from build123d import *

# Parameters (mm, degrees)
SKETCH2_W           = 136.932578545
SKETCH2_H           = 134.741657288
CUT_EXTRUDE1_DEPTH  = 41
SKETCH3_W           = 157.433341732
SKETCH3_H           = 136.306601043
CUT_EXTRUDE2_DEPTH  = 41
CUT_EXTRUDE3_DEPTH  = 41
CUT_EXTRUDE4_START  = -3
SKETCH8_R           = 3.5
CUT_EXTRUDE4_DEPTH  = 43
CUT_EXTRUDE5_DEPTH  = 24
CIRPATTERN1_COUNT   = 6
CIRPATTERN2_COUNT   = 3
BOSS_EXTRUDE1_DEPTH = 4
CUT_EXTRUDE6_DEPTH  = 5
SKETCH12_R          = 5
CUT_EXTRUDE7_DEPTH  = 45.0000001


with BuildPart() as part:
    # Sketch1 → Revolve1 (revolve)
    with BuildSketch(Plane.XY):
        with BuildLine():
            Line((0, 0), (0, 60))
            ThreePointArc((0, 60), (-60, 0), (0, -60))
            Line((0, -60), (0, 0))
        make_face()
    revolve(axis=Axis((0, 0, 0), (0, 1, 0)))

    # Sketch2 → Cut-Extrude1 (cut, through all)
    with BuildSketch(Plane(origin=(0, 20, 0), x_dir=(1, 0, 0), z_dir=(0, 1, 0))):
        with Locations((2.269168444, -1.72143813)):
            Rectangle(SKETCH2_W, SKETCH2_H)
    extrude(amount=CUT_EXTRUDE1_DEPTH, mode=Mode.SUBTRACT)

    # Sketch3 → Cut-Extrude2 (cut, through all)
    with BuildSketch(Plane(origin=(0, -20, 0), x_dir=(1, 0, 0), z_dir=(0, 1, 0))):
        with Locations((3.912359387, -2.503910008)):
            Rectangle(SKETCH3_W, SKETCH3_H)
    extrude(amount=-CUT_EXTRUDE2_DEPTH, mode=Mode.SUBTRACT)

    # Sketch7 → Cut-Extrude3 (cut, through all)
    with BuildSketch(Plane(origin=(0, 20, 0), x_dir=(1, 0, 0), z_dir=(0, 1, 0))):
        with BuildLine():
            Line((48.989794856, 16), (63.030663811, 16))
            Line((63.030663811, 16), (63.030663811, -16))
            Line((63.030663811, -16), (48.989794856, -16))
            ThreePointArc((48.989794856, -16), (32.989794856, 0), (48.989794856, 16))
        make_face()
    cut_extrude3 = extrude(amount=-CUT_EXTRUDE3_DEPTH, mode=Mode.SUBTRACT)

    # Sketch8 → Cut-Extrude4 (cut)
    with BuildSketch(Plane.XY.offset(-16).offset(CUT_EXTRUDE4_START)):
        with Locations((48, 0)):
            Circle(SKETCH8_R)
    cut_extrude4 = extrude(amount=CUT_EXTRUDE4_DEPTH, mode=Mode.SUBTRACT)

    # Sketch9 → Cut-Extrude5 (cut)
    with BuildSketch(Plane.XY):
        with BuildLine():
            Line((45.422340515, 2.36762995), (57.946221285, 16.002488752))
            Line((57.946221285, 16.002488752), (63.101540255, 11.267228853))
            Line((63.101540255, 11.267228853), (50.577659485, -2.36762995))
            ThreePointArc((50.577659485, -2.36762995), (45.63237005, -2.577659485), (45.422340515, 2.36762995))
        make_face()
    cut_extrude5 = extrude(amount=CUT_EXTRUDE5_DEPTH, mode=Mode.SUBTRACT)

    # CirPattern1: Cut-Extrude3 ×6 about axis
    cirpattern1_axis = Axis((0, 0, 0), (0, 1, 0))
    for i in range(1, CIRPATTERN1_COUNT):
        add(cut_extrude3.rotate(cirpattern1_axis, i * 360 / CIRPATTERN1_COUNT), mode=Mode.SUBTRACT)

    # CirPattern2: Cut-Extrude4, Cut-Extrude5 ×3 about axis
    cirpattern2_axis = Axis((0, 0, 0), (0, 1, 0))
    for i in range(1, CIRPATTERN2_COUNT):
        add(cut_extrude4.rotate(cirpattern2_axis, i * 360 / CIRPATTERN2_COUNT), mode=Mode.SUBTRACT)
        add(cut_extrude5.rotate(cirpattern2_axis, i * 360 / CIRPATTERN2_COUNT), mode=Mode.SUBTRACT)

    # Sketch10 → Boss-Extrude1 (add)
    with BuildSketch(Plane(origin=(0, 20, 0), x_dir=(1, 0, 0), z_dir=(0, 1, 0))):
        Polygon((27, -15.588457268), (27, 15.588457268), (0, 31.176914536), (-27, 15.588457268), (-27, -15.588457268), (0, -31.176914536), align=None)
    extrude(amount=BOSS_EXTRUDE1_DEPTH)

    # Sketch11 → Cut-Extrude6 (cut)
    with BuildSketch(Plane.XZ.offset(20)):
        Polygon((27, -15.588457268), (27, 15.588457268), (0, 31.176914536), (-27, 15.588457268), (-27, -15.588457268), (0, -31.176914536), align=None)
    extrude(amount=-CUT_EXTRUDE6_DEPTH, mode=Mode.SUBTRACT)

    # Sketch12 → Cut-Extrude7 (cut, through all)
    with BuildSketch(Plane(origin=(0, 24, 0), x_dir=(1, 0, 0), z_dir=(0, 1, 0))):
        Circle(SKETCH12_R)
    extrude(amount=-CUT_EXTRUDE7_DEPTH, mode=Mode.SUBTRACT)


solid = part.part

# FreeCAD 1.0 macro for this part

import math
import FreeCAD as App
import Part
import Sketcher

V = App.Vector
Q = App.Units.Quantity

doc = App.newDocument("Part")
body = doc.addObject("PartDesign::Body", "Body")

# Sketch on XY plane
sketch1 = doc.addObject("Sketcher::SketchObject", "Sketch")
body.addObject(sketch1)
sketch1.AttachmentSupport = (doc.XY_Plane, [""])
sketch1.MapMode = "FlatFace"
sketch1.addGeometry([
    Part.ArcOfCircle(Part.Circle(V(0, 0, 0), V(0, 0, 1), 60), math.radians(90), math.radians(270)),
    Part.LineSegment(V(0, -60, 0), V(0, 60, 0)),
], False)
sketch1.addConstraint([
    Sketcher.Constraint("Coincident", 0, 1, 1, 2),
    Sketcher.Constraint("Coincident", 1, 1, 0, 2),
    Sketcher.Constraint("Vertical", 1),
    Sketcher.Constraint("Coincident", 0, 3, -1, 1),
    Sketcher.Constraint("PointOnObject", 0, 1, -2),
    Sketcher.Constraint("Radius", 0, Q("60 mm")),
])
revolution = doc.addObject("PartDesign::Revolution", "Revolution")
body.addObject(revolution)
revolution.Profile = sketch1
revolution.ReferenceAxis = (sketch1, ["V_Axis"])
revolution.Angle = 360

# Sketch on XZ plane
sketch2 = doc.addObject("Sketcher::SketchObject", "Sketch001")
body.addObject(sketch2)
sketch2.AttachmentSupport = (doc.XZ_Plane, [""])
sketch2.MapMode = "FlatFace"
sketch2.AttachmentOffset = App.Placement(V(0, 0, -20), App.Rotation())
sketch2.addGeometry([
    Part.LineSegment(V(-66.197121, -65.649391, 0), V(-66.197121, 69.092267, 0)),
    Part.LineSegment(V(-66.197121, 69.092267, 0), V(70.735458, 69.092267, 0)),
    Part.LineSegment(V(70.735458, 69.092267, 0), V(70.735458, -65.649391, 0)),
    Part.LineSegment(V(70.735458, -65.649391, 0), V(-66.197121, -65.649391, 0)),
], False)
sketch2.addConstraint([
    Sketcher.Constraint("Coincident", 0, 2, 1, 1),
    Sketcher.Constraint("Coincident", 1, 2, 2, 1),
    Sketcher.Constraint("Coincident", 2, 2, 3, 1),
    Sketcher.Constraint("Coincident", 3, 2, 0, 1),
    Sketcher.Constraint("Vertical", 0),
    Sketcher.Constraint("Horizontal", 1),
    Sketcher.Constraint("Vertical", 2),
    Sketcher.Constraint("Horizontal", 3),
    Sketcher.Constraint("DistanceX", 1, 1, 1, 2, Q("136.932579 mm")),
    Sketcher.Constraint("DistanceY", 0, 1, 0, 2, Q("134.741657 mm")),
    Sketcher.Constraint("DistanceX", 0, 2, -1, 1, Q("66.197121 mm")),
    Sketcher.Constraint("DistanceY", 2, 2, -1, 1, Q("65.649391 mm")),
])
pocket1 = doc.addObject("PartDesign::Pocket", "Pocket")
body.addObject(pocket1)
pocket1.Profile = sketch2
pocket1.Type = "ThroughAll"

# Sketch on XZ plane
sketch3 = doc.addObject("Sketcher::SketchObject", "Sketch002")
body.addObject(sketch3)
sketch3.AttachmentSupport = (doc.XZ_Plane, [""])
sketch3.MapMode = "FlatFace"
sketch3.AttachmentOffset = App.Placement(V(0, 0, 20), App.Rotation())
sketch3.addGeometry([
    Part.LineSegment(V(-74.804311, -65.649391, 0), V(-74.804311, 70.657211, 0)),
    Part.LineSegment(V(-74.804311, 70.657211, 0), V(82.62903, 70.657211, 0)),
    Part.LineSegment(V(82.62903, 70.657211, 0), V(82.62903, -65.649391, 0)),
    Part.LineSegment(V(82.62903, -65.649391, 0), V(-74.804311, -65.649391, 0)),
], False)
sketch3.addConstraint([
    Sketcher.Constraint("Coincident", 0, 2, 1, 1),
    Sketcher.Constraint("Coincident", 1, 2, 2, 1),
    Sketcher.Constraint("Coincident", 2, 2, 3, 1),
    Sketcher.Constraint("Coincident", 3, 2, 0, 1),
    Sketcher.Constraint("Vertical", 0),
    Sketcher.Constraint("Horizontal", 1),
    Sketcher.Constraint("Vertical", 2),
    Sketcher.Constraint("Horizontal", 3),
    Sketcher.Constraint("DistanceY", 0, 1, 0, 2, Q("136.306601 mm")),
    Sketcher.Constraint("DistanceX", 1, 1, 1, 2, Q("157.433342 mm")),
    Sketcher.Constraint("DistanceX", 0, 2, -1, 1, Q("74.804311 mm")),
    Sketcher.Constraint("DistanceY", -1, 1, 0, 2, Q("70.657211 mm")),
])
pocket2 = doc.addObject("PartDesign::Pocket", "Pocket001")
body.addObject(pocket2)
pocket2.Profile = sketch3
pocket2.Type = "ThroughAll"
pocket2.Reversed = True

# Sketch on XZ plane
sketch4 = doc.addObject("Sketcher::SketchObject", "Sketch003")
body.addObject(sketch4)
sketch4.AttachmentSupport = (doc.XZ_Plane, [""])
sketch4.MapMode = "FlatFace"
sketch4.AttachmentOffset = App.Placement(V(0, 0, -20), App.Rotation())
sketch4.addGeometry([
    Part.LineSegment(V(63.030664, -16, 0), V(48.989795, -16, 0)),
    Part.ArcOfCircle(Part.Circle(V(48.989795, 0, 0), V(0, 0, 1), 16), math.radians(90), math.radians(270)),
    Part.LineSegment(V(48.989795, 16, 0), V(63.030664, 16, 0)),
    Part.LineSegment(V(63.030664, 16, 0), V(63.030664, -16, 0)),
], False)
sketch4.addConstraint([
    Sketcher.Constraint("Tangent", 0, 2, 1, 2),
    Sketcher.Constraint("Tangent", 1, 1, 2, 1),
    Sketcher.Constraint("Coincident", 2, 2, 3, 1),
    Sketcher.Constraint("Coincident", 3, 2, 0, 1),
    Sketcher.Constraint("Horizontal", 0),
    Sketcher.Constraint("Horizontal", 2),
    Sketcher.Constraint("Vertical", 3),
    Sketcher.Constraint("PointOnObject", 1, 3, -1),
    Sketcher.Constraint("Radius", 1, Q("16 mm")),
    Sketcher.Constraint("DistanceX", 0, 2, 0, 1, Q("14.040869 mm")),
    Sketcher.Constraint("DistanceX", -1, 1, 1, 3, Q("48.989795 mm")),
])
pocket3 = doc.addObject("PartDesign::Pocket", "Pocket002")
body.addObject(pocket3)
pocket3.Profile = sketch4
pocket3.Type = "ThroughAll"
pocket3.Reversed = True

# Sketch on XY plane
sketch5 = doc.addObject("Sketcher::SketchObject", "Sketch004")
body.addObject(sketch5)
sketch5.AttachmentSupport = (doc.XY_Plane, [""])
sketch5.MapMode = "FlatFace"
sketch5.AttachmentOffset = App.Placement(V(0, 0, -19), App.Rotation())
sketch5.addGeometry(Part.Circle(V(48, 0, 0), V(0, 0, 1), 3.5), False)
sketch5.addConstraint([
    Sketcher.Constraint("PointOnObject", 0, 3, -1),
    Sketcher.Constraint("Diameter", 0, Q("7 mm")),
    Sketcher.Constraint("DistanceX", -1, 1, 0, 3, Q("48 mm")),
])
pocket4 = doc.addObject("PartDesign::Pocket", "Pocket003")
body.addObject(pocket4)
pocket4.Profile = sketch5
pocket4.Length = 43
pocket4.Reversed = True

# Sketch on XY plane
sketch6 = doc.addObject("Sketcher::SketchObject", "Sketch005")
body.addObject(sketch6)
sketch6.AttachmentSupport = (doc.XY_Plane, [""])
sketch6.MapMode = "FlatFace"
sketch6.addGeometry([
    Part.LineSegment(V(57.946221, 16.002489, 0), V(45.422341, 2.36763, 0)),
    Part.ArcOfCircle(Part.Circle(V(48, 0, 0), V(0, 0, 1), 3.5), math.radians(137.431926), math.radians(317.431926)),
    Part.LineSegment(V(50.577659, -2.36763, 0), V(63.10154, 11.267229, 0)),
    Part.LineSegment(V(63.10154, 11.267229, 0), V(57.946221, 16.002489, 0)),
], False)
sketch6.addConstraint([
    Sketcher.Constraint("Tangent", 0, 2, 1, 1),
    Sketcher.Constraint("Tangent", 1, 2, 2, 1),
    Sketcher.Constraint("Coincident", 2, 2, 3, 1),
    Sketcher.Constraint("Coincident", 3, 2, 0, 1),
    Sketcher.Constraint("PointOnObject", 1, 3, -1),
    Sketcher.Constraint("Parallel", 0, 2),
    Sketcher.Constraint("Perpendicular", 2, 3),
    Sketcher.Constraint("Radius", 1, Q("3.5 mm")),
    Sketcher.Constraint("DistanceX", -1, 1, 1, 3, Q("48 mm")),
    Sketcher.Constraint("DistanceX", 0, 2, 2, 2, Q("17.6792 mm")),
    Sketcher.Constraint("DistanceY", 0, 2, 2, 2, Q("8.899599 mm")),
])
pocket5 = doc.addObject("PartDesign::Pocket", "Pocket004")
body.addObject(pocket5)
pocket5.Profile = sketch6
pocket5.Length = 24
pocket5.Reversed = True
doc.recompute()

polarpattern = doc.addObject("PartDesign::PolarPattern", "PolarPattern")
body.addObject(polarpattern)
polarpattern.Originals = [pocket3]
polarpattern.Axis = (doc.Y_Axis, [""])
polarpattern.Angle = 360
polarpattern.Occurrences = 6
body.Tip = polarpattern
doc.recompute()

polarpattern2 = doc.addObject("PartDesign::PolarPattern", "PolarPattern001")
body.addObject(polarpattern2)
polarpattern2.Originals = [pocket4, pocket5]
polarpattern2.Axis = (doc.Y_Axis, [""])
polarpattern2.Angle = 360
polarpattern2.Occurrences = 3
body.Tip = polarpattern2

# Sketch on XZ plane
sketch7 = doc.addObject("Sketcher::SketchObject", "Sketch006")
body.addObject(sketch7)
sketch7.AttachmentSupport = (doc.XZ_Plane, [""])
sketch7.MapMode = "FlatFace"
sketch7.AttachmentOffset = App.Placement(V(0, 0, -20), App.Rotation())
sketch7.addGeometry([
    Part.LineSegment(V(27, 15.588457, 0), V(27, -15.588457, 0)),  # 0
    Part.LineSegment(V(27, -15.588457, 0), V(0, -31.176915, 0)),  # 1
    Part.LineSegment(V(0, -31.176915, 0), V(-27, -15.588457, 0)),  # 2
    Part.LineSegment(V(-27, -15.588457, 0), V(-27, 15.588457, 0)),  # 3
    Part.LineSegment(V(-27, 15.588457, 0), V(0, 31.176915, 0)),  # 4
    Part.LineSegment(V(0, 31.176915, 0), V(27, 15.588457, 0)),  # 5
], False)
sketch7.addConstraint([
    Sketcher.Constraint("Coincident", 0, 2, 1, 1),
    Sketcher.Constraint("Coincident", 1, 2, 2, 1),
    Sketcher.Constraint("Coincident", 2, 2, 3, 1),
    Sketcher.Constraint("Coincident", 3, 2, 4, 1),
    Sketcher.Constraint("Coincident", 4, 2, 5, 1),
    Sketcher.Constraint("Coincident", 5, 2, 0, 1),
    Sketcher.Constraint("Vertical", 0),
    Sketcher.Constraint("Vertical", 3),
    Sketcher.Constraint("Symmetric", 0, 2, 3, 2, -1, 1),
    Sketcher.Constraint("Symmetric", 1, 2, 4, 2, -1, 1),
    Sketcher.Constraint("PointOnObject", 1, 2, -2),
    Sketcher.Constraint("Parallel", 2, 5),
    Sketcher.Constraint("Horizontal", 0, 2, 2, 2),
    Sketcher.Constraint("Angle", 1, Q("-150 deg")),
    Sketcher.Constraint("DistanceX", -1, 1, 0, 2, Q("27 mm")),
    Sketcher.Constraint("DistanceY", 0, 2, 0, 1, Q("31.176915 mm")),
])
pad1 = doc.addObject("PartDesign::Pad", "Pad")
body.addObject(pad1)
pad1.Profile = sketch7
pad1.Length = 4
pad1.Reversed = True

# Sketch on XZ plane
sketch8 = doc.addObject("Sketcher::SketchObject", "Sketch007")
body.addObject(sketch8)
sketch8.AttachmentSupport = (doc.XZ_Plane, [""])
sketch8.MapMode = "FlatFace"
sketch8.AttachmentOffset = App.Placement(V(0, 0, 20), App.Rotation())
sketch8.addGeometry([
    Part.LineSegment(V(27, -15.588457, 0), V(27, 15.588457, 0)),  # 0
    Part.LineSegment(V(27, 15.588457, 0), V(0, 31.176915, 0)),  # 1
    Part.LineSegment(V(0, 31.176915, 0), V(-27, 15.588457, 0)),  # 2
    Part.LineSegment(V(-27, 15.588457, 0), V(-27, -15.588457, 0)),  # 3
    Part.LineSegment(V(-27, -15.588457, 0), V(0, -31.176915, 0)),  # 4
    Part.LineSegment(V(0, -31.176915, 0), V(27, -15.588457, 0)),  # 5
], False)
sketch8.addConstraint([
    Sketcher.Constraint("Coincident", 0, 2, 1, 1),
    Sketcher.Constraint("Coincident", 1, 2, 2, 1),
    Sketcher.Constraint("Coincident", 2, 2, 3, 1),
    Sketcher.Constraint("Coincident", 3, 2, 4, 1),
    Sketcher.Constraint("Coincident", 4, 2, 5, 1),
    Sketcher.Constraint("Coincident", 5, 2, 0, 1),
    Sketcher.Constraint("Vertical", 0),
    Sketcher.Constraint("Vertical", 3),
    Sketcher.Constraint("Symmetric", 0, 2, 3, 2, -1, 1),
    Sketcher.Constraint("Symmetric", 1, 2, 4, 2, -1, 1),
    Sketcher.Constraint("PointOnObject", 1, 2, -2),
    Sketcher.Constraint("Parallel", 2, 5),
    Sketcher.Constraint("Horizontal", 0, 2, 2, 2),
    Sketcher.Constraint("Angle", 1, Q("150 deg")),
    Sketcher.Constraint("DistanceX", -1, 1, 0, 2, Q("27 mm")),
    Sketcher.Constraint("DistanceY", 0, 1, 0, 2, Q("31.176915 mm")),
])
pocket6 = doc.addObject("PartDesign::Pocket", "Pocket005")
body.addObject(pocket6)
pocket6.Profile = sketch8
pocket6.Length = 5

# Sketch on XZ plane
sketch9 = doc.addObject("Sketcher::SketchObject", "Sketch008")
body.addObject(sketch9)
sketch9.AttachmentSupport = (doc.XZ_Plane, [""])
sketch9.MapMode = "FlatFace"
sketch9.AttachmentOffset = App.Placement(V(0, 0, -24), App.Rotation())
sketch9.addGeometry(Part.Circle(V(0, 0, 0), V(0, 0, 1), 5), False)
sketch9.addConstraint([
    Sketcher.Constraint("Coincident", 0, 3, -1, 1),
    Sketcher.Constraint("Diameter", 0, Q("10 mm")),
])
pocket7 = doc.addObject("PartDesign::Pocket", "Pocket006")
body.addObject(pocket7)
pocket7.Profile = sketch9
pocket7.Type = "ThroughAll"
pocket7.Reversed = True

doc.recompute()
